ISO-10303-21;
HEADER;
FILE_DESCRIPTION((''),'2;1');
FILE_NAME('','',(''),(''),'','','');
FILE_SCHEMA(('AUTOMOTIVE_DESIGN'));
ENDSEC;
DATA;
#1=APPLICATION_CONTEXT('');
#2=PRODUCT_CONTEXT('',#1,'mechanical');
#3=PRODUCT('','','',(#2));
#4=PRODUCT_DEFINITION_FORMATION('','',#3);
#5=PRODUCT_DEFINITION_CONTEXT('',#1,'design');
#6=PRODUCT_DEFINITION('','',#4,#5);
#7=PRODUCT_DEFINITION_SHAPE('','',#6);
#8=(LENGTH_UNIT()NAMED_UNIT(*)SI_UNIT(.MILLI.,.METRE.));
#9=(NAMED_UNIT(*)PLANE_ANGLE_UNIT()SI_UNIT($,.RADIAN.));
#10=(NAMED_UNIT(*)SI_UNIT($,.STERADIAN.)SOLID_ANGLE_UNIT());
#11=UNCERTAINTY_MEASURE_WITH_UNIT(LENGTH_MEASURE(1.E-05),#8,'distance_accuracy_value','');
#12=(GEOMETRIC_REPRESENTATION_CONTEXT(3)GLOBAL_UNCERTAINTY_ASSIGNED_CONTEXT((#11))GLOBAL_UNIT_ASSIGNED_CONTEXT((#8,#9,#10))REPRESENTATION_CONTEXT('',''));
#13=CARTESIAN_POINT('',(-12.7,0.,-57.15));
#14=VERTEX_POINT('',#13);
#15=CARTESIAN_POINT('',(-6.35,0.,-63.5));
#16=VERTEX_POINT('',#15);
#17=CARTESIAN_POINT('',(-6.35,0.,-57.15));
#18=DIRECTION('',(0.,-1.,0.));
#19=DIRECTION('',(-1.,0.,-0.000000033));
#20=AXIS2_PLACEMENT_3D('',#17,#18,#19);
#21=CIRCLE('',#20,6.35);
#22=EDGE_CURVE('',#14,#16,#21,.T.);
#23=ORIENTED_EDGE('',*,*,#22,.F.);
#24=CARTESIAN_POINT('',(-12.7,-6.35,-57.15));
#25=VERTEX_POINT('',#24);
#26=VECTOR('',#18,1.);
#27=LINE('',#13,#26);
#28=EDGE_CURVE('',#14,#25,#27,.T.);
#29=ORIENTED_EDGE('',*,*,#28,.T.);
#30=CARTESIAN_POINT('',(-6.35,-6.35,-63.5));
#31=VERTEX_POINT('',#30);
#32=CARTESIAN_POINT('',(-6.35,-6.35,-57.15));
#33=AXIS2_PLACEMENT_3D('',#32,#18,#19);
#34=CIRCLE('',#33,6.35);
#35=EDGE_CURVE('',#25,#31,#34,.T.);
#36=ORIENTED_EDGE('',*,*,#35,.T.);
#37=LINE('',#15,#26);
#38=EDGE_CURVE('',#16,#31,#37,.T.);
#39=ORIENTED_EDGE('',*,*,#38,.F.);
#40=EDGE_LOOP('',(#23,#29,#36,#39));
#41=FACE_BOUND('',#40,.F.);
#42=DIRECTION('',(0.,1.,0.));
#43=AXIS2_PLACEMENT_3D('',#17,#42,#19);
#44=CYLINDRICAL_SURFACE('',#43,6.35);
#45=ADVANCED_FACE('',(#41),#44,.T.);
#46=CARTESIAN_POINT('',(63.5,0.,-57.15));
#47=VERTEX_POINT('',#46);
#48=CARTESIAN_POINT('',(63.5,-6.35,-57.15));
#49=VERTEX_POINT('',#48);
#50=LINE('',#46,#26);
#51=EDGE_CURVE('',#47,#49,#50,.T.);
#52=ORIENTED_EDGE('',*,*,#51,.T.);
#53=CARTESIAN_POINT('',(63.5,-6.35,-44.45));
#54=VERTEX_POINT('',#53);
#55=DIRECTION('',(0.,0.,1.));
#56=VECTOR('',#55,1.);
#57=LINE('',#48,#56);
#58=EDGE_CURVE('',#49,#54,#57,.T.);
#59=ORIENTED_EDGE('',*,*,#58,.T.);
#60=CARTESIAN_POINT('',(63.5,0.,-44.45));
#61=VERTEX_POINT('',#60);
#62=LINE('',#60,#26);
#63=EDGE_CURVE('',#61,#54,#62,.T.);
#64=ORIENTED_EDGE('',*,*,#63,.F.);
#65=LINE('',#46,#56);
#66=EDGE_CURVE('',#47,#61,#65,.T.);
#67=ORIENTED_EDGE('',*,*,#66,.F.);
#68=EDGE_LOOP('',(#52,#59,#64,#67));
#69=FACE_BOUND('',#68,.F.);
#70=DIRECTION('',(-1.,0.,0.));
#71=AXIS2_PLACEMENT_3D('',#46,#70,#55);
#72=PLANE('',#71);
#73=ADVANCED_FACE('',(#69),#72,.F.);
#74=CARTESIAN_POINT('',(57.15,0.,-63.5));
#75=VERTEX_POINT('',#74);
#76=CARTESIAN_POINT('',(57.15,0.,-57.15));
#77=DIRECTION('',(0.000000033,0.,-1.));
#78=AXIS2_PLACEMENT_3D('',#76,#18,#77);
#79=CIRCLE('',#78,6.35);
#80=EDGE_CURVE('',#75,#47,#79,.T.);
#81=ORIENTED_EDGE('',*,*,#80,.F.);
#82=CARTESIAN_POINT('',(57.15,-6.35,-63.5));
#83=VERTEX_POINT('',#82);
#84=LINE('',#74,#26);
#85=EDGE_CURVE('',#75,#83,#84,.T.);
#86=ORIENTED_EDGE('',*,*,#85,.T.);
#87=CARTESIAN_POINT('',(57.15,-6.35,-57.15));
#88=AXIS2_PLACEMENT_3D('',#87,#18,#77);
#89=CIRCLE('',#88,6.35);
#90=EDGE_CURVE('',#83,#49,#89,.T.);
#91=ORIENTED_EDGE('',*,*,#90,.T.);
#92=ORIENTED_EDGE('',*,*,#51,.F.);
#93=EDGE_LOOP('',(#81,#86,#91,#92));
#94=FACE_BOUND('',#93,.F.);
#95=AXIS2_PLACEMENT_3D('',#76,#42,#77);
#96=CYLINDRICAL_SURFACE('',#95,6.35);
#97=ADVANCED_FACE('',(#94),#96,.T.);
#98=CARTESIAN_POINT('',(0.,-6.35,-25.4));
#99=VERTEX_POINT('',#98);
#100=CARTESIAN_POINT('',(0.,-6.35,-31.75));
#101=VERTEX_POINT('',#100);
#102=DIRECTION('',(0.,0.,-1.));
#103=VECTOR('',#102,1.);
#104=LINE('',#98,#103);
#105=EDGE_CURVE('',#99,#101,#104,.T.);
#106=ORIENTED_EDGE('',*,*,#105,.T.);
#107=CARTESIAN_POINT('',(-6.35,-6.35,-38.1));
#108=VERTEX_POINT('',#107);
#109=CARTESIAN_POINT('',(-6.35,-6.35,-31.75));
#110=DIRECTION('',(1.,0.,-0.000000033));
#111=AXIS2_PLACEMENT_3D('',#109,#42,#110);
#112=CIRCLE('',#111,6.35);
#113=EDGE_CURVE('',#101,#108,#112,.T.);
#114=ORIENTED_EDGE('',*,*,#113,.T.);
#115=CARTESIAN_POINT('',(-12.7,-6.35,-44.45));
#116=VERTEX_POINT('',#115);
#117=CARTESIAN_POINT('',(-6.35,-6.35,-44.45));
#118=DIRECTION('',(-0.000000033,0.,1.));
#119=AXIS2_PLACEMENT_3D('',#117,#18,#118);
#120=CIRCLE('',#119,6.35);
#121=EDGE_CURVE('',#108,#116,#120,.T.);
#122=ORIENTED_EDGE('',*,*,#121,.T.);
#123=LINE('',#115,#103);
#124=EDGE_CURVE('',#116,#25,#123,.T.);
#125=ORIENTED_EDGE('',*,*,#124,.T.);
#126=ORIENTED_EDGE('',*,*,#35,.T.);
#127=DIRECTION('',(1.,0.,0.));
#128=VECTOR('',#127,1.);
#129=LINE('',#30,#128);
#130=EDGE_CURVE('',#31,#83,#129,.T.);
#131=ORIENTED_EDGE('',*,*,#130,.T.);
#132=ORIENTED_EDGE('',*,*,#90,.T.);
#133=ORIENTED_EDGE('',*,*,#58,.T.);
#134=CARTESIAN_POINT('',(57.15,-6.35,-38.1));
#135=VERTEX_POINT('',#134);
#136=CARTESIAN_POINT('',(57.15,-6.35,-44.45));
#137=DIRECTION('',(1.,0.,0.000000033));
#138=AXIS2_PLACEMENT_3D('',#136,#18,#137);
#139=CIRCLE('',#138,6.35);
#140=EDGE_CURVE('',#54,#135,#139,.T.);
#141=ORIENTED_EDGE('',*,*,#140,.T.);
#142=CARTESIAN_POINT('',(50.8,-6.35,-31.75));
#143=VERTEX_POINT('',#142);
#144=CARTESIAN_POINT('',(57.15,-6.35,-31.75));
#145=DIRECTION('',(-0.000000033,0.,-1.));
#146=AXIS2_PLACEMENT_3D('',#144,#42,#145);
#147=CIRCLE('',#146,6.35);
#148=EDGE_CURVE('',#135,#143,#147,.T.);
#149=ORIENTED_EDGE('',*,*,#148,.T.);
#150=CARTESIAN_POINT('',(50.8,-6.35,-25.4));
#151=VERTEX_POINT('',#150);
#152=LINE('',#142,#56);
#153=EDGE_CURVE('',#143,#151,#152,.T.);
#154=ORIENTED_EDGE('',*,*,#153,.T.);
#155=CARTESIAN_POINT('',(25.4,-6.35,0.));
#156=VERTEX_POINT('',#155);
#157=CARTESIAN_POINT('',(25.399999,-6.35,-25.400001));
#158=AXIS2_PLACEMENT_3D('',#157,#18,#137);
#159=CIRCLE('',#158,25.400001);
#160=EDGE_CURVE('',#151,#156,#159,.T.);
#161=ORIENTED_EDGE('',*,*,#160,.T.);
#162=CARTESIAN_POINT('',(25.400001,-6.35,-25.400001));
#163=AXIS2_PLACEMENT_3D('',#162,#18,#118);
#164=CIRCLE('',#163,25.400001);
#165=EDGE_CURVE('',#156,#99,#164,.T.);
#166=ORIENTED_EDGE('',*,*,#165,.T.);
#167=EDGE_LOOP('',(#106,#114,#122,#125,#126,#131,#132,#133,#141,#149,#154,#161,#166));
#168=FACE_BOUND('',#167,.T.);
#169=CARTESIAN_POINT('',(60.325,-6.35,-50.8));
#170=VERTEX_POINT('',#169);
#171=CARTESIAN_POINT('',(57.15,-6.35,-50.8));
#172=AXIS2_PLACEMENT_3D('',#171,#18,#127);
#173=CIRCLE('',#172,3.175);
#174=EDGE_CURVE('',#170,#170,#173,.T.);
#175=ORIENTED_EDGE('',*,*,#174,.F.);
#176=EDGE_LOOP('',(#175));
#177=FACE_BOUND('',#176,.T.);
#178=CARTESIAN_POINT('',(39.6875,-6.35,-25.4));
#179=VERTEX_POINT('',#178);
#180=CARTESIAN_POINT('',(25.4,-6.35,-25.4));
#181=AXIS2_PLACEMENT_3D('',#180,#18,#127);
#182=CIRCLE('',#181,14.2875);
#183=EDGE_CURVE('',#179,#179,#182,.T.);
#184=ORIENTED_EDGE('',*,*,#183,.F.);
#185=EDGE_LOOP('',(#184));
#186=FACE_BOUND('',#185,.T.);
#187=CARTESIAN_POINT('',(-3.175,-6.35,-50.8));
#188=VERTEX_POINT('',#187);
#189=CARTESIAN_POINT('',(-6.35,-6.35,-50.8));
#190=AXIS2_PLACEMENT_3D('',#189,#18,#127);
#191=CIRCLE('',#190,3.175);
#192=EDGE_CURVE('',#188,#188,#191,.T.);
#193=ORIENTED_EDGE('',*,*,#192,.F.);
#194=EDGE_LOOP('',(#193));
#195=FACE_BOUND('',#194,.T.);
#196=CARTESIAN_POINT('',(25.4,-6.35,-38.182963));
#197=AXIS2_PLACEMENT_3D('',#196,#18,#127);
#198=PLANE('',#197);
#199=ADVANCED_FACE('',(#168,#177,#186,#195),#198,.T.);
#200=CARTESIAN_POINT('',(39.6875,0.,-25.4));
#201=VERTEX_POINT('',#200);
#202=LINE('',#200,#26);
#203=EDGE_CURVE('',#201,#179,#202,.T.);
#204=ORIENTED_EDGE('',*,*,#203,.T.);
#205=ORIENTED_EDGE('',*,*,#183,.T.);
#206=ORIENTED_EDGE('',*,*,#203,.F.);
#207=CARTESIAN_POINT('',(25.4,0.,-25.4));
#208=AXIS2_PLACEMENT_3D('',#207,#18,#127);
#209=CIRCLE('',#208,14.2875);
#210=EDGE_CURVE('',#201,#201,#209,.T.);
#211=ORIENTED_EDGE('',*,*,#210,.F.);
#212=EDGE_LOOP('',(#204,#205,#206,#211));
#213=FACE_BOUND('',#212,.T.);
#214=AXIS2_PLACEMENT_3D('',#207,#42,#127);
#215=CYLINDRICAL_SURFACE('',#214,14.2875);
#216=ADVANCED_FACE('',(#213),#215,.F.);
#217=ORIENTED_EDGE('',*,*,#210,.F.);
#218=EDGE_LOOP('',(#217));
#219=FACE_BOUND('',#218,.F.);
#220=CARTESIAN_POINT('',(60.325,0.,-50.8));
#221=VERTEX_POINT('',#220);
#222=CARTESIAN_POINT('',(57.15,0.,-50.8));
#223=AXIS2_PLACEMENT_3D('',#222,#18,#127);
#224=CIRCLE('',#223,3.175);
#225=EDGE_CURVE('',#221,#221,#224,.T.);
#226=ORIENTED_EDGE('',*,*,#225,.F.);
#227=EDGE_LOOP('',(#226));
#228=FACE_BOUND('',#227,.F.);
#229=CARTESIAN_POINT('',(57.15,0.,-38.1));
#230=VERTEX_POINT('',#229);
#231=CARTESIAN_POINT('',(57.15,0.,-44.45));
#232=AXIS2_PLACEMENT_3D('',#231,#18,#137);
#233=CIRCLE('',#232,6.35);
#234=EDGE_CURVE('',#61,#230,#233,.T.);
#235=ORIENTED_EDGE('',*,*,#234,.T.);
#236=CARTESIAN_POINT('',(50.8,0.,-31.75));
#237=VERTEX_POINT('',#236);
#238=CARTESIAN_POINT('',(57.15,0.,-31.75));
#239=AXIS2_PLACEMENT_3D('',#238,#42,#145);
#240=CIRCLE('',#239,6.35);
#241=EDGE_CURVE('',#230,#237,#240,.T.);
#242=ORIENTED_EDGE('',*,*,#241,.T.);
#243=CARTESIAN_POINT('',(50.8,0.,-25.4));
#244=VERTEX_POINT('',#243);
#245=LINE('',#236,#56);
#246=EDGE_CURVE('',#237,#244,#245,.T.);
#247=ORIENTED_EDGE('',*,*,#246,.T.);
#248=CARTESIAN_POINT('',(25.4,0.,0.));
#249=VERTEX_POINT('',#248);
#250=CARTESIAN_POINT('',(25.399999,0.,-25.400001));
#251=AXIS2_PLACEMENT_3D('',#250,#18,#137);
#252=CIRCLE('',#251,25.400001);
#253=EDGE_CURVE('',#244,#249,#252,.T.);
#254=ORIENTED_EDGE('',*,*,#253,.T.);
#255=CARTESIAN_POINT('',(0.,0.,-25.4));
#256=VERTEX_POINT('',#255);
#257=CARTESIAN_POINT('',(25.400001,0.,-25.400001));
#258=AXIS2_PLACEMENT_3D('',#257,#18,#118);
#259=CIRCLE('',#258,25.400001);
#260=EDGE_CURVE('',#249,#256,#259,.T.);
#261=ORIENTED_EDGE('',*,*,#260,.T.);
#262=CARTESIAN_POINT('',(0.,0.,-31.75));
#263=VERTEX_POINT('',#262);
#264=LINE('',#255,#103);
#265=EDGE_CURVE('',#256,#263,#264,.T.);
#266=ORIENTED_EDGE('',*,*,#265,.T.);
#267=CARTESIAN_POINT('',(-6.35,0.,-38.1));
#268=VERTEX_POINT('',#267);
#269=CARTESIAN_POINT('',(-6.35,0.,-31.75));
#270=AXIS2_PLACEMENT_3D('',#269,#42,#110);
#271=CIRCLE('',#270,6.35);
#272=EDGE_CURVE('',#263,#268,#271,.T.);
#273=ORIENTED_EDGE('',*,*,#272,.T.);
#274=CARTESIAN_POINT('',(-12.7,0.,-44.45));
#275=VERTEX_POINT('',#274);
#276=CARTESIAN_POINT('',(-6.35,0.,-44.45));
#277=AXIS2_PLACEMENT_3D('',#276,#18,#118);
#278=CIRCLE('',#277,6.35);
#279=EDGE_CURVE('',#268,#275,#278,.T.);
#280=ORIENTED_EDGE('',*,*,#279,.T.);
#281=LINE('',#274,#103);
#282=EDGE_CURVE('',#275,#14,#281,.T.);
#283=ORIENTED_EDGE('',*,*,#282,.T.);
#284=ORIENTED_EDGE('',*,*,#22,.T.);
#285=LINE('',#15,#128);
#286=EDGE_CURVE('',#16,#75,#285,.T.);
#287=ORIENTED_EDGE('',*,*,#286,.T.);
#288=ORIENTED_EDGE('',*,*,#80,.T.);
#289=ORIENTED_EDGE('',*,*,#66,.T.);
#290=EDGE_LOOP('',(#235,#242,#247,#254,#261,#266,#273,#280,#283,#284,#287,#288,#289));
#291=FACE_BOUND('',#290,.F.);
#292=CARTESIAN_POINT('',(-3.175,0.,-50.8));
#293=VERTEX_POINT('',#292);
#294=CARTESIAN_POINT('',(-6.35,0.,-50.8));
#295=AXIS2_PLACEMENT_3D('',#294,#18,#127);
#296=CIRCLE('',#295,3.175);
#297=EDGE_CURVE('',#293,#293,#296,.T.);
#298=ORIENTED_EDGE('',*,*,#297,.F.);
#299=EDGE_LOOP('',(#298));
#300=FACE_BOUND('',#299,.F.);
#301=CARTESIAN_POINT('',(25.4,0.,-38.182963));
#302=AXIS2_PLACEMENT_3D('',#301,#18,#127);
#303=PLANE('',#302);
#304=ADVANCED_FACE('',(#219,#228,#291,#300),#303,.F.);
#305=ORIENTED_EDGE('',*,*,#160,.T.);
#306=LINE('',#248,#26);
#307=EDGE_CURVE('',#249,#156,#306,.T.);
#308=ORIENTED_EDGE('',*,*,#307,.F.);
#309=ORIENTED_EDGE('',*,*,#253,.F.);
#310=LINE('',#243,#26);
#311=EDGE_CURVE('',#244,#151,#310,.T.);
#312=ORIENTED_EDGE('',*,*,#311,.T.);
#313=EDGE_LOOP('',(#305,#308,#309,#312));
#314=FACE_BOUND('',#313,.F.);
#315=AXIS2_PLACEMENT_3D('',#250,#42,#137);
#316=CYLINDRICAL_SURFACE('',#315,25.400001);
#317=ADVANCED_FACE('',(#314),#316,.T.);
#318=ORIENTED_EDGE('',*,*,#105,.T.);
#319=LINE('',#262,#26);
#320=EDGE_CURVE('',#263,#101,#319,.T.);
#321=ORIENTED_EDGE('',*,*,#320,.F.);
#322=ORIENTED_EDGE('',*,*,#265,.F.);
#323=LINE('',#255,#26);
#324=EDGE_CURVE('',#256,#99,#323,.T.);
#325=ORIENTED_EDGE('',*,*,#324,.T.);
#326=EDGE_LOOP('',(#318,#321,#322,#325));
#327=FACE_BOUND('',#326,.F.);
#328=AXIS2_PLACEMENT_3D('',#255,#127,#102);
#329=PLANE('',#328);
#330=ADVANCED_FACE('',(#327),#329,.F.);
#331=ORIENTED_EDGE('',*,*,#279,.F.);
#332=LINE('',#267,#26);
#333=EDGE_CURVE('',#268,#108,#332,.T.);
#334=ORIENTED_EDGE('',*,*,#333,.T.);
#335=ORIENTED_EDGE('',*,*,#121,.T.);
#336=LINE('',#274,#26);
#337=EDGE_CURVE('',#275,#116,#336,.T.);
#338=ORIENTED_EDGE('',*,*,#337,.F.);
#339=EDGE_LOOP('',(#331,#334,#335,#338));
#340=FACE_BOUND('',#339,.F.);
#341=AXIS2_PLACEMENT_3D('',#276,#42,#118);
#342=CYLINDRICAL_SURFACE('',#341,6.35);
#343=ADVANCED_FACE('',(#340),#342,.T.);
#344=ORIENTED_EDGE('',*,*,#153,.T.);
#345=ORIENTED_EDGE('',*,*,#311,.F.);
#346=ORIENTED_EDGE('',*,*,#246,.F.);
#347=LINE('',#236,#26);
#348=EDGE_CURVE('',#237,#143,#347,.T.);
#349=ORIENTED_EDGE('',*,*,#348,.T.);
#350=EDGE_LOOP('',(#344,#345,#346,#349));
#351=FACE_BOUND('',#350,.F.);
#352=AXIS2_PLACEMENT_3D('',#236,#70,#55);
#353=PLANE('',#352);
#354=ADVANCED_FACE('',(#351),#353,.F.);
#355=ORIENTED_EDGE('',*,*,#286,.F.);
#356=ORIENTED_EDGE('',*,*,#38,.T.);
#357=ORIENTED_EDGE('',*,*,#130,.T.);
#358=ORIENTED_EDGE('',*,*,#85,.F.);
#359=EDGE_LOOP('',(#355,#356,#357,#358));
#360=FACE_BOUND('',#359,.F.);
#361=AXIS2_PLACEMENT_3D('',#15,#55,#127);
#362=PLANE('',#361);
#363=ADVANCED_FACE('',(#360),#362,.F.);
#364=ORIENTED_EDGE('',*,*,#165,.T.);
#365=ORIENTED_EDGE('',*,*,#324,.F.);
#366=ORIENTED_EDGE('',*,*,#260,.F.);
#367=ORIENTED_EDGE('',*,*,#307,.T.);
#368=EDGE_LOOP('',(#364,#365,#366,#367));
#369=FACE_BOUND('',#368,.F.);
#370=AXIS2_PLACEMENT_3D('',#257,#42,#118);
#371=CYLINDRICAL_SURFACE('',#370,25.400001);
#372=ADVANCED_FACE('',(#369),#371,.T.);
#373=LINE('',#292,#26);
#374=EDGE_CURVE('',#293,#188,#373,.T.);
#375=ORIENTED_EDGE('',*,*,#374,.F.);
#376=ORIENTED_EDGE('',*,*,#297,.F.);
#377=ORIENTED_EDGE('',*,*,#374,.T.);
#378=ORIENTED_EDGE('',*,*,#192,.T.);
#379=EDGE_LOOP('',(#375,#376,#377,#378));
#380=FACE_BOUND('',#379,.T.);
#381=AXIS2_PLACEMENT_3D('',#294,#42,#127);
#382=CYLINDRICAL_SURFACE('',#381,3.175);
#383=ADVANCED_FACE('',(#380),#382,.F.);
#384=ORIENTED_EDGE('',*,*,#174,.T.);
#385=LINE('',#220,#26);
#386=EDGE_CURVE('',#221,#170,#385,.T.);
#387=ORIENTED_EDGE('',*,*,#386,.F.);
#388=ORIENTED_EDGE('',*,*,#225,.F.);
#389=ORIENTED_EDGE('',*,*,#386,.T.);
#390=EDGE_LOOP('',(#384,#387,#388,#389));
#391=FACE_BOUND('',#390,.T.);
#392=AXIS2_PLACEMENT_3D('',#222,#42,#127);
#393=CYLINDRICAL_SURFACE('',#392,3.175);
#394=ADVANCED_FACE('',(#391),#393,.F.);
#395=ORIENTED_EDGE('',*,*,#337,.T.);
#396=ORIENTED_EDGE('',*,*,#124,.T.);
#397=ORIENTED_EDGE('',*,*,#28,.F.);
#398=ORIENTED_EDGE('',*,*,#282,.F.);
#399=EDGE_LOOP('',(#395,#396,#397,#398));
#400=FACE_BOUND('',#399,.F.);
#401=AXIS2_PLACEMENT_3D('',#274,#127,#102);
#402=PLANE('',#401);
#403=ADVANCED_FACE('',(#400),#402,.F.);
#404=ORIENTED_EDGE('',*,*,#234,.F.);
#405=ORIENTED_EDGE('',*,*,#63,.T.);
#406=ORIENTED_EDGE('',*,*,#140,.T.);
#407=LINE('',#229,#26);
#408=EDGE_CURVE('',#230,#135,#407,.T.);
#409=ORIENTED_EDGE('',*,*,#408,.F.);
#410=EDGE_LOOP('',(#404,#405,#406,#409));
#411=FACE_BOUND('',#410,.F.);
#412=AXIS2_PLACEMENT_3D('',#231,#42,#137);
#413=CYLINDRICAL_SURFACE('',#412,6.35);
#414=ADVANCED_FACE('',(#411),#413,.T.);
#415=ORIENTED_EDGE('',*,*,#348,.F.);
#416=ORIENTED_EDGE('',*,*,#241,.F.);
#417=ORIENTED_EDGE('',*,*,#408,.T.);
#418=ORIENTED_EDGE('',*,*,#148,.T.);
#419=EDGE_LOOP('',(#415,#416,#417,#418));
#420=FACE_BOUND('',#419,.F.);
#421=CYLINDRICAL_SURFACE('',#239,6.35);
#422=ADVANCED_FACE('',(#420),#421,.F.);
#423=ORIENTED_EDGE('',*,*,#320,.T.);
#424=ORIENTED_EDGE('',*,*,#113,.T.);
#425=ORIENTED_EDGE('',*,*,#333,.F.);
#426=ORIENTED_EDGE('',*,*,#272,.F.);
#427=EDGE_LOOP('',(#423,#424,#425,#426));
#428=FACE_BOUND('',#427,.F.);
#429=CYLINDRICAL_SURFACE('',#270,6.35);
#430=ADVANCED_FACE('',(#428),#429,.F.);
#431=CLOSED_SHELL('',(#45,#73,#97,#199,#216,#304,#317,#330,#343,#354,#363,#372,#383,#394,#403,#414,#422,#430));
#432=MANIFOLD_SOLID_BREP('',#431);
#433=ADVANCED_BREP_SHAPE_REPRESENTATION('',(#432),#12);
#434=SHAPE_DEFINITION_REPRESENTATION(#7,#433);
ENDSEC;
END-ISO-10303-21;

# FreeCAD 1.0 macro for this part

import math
import FreeCAD as App
import Part
import Sketcher

V = App.Vector
Q = App.Units.Quantity

doc = App.newDocument("Part")
body = doc.addObject("PartDesign::Body", "Body")

# Sketch on XZ plane
sketch1 = body.newObject("Sketcher::SketchObject", "Sketch")
sketch1.AttachmentSupport = (doc.getObject("XZ_Plane"), [""])
sketch1.MapMode = "FlatFace"
sketch1.addGeometry(Part.LineSegment(V(-6.3, -63.5, 0), V(57.1, -63.5, 0)), False)
sketch1.addGeometry(Part.ArcOfCircle(Part.Circle(V(57.1, -57.1, 0), V(0, 0, 1), 6.4), math.radians(-90), math.radians(0)), False)
sketch1.addGeometry(Part.LineSegment(V(63.5, -57.1, 0), V(63.5, -44.5, 0)), False)
sketch1.addGeometry(Part.ArcOfCircle(Part.Circle(V(57.1, -44.5, 0), V(0, 0, 1), 6.4), math.radians(0), math.radians(90)), False)
sketch1.addGeometry(Part.ArcOfCircle(Part.Circle(V(57.2, -31.7, 0), V(0, 0, 1), 6.4), math.radians(-180), math.radians(-90)), False)
sketch1.addGeometry(Part.LineSegment(V(50.8, -31.8, 0), V(50.8, -25.4, 0)), False)
sketch1.addGeometry(Part.ArcOfCircle(Part.Circle(V(25.4, -25.4, 0), V(0, 0, 1), 25.4), math.radians(0), math.radians(90)), False)
sketch1.addGeometry(Part.ArcOfCircle(Part.Circle(V(25.4, -25.4, 0), V(0, 0, 1), 25.4), math.radians(90), math.radians(180)), False)
sketch1.addGeometry(Part.LineSegment(V(0, -25.4, 0), V(0, -31.8, 0)), False)
sketch1.addGeometry(Part.ArcOfCircle(Part.Circle(V(-6.4, -31.7, 0), V(0, 0, 1), 6.4), math.radians(-90), math.radians(0)), False)
sketch1.addGeometry(Part.ArcOfCircle(Part.Circle(V(-6.3, -44.5, 0), V(0, 0, 1), 6.4), math.radians(90), math.radians(180)), False)
sketch1.addGeometry(Part.LineSegment(V(-12.7, -44.5, 0), V(-12.7, -57.1, 0)), False)
sketch1.addGeometry(Part.ArcOfCircle(Part.Circle(V(-6.3, -57.1, 0), V(0, 0, 1), 6.4), math.radians(-180), math.radians(-90)), False)
sketch1.addGeometry(Part.Circle(V(-6.3, -50.8, 0), V(0, 0, 1), 3.2), False)
sketch1.addGeometry(Part.Circle(V(57.1, -50.8, 0), V(0, 0, 1), 3.2), False)
sketch1.addGeometry(Part.Circle(V(25.4, -25.4, 0), V(0, 0, 1), 14.3), False)
sketch1.addConstraint(Sketcher.Constraint("Tangent", 0, 2, 1, 1))
sketch1.addConstraint(Sketcher.Constraint("Tangent", 1, 2, 2, 1))
sketch1.addConstraint(Sketcher.Constraint("Tangent", 2, 2, 3, 1))
sketch1.addConstraint(Sketcher.Constraint("Tangent", 3, 2, 4, 2))
sketch1.addConstraint(Sketcher.Constraint("Tangent", 4, 1, 5, 1))
sketch1.addConstraint(Sketcher.Constraint("Tangent", 5, 2, 6, 1))
sketch1.addConstraint(Sketcher.Constraint("Tangent", 6, 2, 7, 1))
sketch1.addConstraint(Sketcher.Constraint("Tangent", 7, 2, 8, 1))
sketch1.addConstraint(Sketcher.Constraint("Tangent", 8, 2, 9, 2))
sketch1.addConstraint(Sketcher.Constraint("Tangent", 9, 1, 10, 1))
sketch1.addConstraint(Sketcher.Constraint("Tangent", 10, 2, 11, 1))
sketch1.addConstraint(Sketcher.Constraint("Tangent", 11, 2, 12, 1))
sketch1.addConstraint(Sketcher.Constraint("Tangent", 12, 2, 0, 1))
sketch1.addConstraint(Sketcher.Constraint("Horizontal", 0))
sketch1.addConstraint(Sketcher.Constraint("Vertical", 2))
sketch1.addConstraint(Sketcher.Constraint("Vertical", 5))
sketch1.addConstraint(Sketcher.Constraint("Vertical", 8))
sketch1.addConstraint(Sketcher.Constraint("Vertical", 11))
sketch1.addConstraint(Sketcher.Constraint("Coincident", 15, 3, 6, 3))
sketch1.addConstraint(Sketcher.Constraint("Equal", 1, 3))
sketch1.addConstraint(Sketcher.Constraint("Equal", 3, 4))
sketch1.addConstraint(Sketcher.Constraint("Equal", 6, 7))
sketch1.addConstraint(Sketcher.Constraint("Equal", 4, 9))
sketch1.addConstraint(Sketcher.Constraint("Equal", 9, 10))
sketch1.addConstraint(Sketcher.Constraint("Equal", 10, 12))
sketch1.addConstraint(Sketcher.Constraint("Equal", 13, 14))
sketch1.addConstraint(Sketcher.Constraint("PointOnObject", 6, 2, -1))
sketch1.addConstraint(Sketcher.Constraint("PointOnObject", 7, 2, -2))
sketch1.addConstraint(Sketcher.Constraint("Horizontal", 4, 3, 9, 3))
sketch1.addConstraint(Sketcher.Constraint("Horizontal", 13, 3, 14, 3))
sketch1.addConstraint(Sketcher.Constraint("Vertical", 3, 3, 4, 3))
sketch1.addConstraint(Sketcher.Constraint("Vertical", 9, 3, 10, 3))
sketch1.addConstraint(Sketcher.Constraint("Vertical", 12, 3, 13, 3))
sketch1.addConstraint(Sketcher.Constraint("Vertical", 4, 3, 14, 3))
sketch1.addConstraint(Sketcher.Constraint("Vertical", 15, 3, 6, 2))
sketch1.addConstraint(Sketcher.Constraint("Radius", 6, Q("1 in")))
sketch1.addConstraint(Sketcher.Constraint("Diameter", 13, Q("0.25 in")))
sketch1.addConstraint(Sketcher.Constraint("Radius", 1, Q("0.25 in")))
sketch1.addConstraint(Sketcher.Constraint("Diameter", 15, Q("1.125 in")))
sketch1.addConstraint(Sketcher.Constraint("DistanceY", 2, 1, 2, 2, Q("0.5 in")))
sketch1.addConstraint(Sketcher.Constraint("DistanceY", 13, 3, -1, 1, Q("2 in")))
sketch1.addConstraint(Sketcher.Constraint("DistanceY", 5, 1, 5, 2, Q("0.25 in")))
pad1 = body.newObject("PartDesign::Pad", "Pad")
pad1.Profile = sketch1
pad1.Length = Q("0.25 in")

doc.recompute()
